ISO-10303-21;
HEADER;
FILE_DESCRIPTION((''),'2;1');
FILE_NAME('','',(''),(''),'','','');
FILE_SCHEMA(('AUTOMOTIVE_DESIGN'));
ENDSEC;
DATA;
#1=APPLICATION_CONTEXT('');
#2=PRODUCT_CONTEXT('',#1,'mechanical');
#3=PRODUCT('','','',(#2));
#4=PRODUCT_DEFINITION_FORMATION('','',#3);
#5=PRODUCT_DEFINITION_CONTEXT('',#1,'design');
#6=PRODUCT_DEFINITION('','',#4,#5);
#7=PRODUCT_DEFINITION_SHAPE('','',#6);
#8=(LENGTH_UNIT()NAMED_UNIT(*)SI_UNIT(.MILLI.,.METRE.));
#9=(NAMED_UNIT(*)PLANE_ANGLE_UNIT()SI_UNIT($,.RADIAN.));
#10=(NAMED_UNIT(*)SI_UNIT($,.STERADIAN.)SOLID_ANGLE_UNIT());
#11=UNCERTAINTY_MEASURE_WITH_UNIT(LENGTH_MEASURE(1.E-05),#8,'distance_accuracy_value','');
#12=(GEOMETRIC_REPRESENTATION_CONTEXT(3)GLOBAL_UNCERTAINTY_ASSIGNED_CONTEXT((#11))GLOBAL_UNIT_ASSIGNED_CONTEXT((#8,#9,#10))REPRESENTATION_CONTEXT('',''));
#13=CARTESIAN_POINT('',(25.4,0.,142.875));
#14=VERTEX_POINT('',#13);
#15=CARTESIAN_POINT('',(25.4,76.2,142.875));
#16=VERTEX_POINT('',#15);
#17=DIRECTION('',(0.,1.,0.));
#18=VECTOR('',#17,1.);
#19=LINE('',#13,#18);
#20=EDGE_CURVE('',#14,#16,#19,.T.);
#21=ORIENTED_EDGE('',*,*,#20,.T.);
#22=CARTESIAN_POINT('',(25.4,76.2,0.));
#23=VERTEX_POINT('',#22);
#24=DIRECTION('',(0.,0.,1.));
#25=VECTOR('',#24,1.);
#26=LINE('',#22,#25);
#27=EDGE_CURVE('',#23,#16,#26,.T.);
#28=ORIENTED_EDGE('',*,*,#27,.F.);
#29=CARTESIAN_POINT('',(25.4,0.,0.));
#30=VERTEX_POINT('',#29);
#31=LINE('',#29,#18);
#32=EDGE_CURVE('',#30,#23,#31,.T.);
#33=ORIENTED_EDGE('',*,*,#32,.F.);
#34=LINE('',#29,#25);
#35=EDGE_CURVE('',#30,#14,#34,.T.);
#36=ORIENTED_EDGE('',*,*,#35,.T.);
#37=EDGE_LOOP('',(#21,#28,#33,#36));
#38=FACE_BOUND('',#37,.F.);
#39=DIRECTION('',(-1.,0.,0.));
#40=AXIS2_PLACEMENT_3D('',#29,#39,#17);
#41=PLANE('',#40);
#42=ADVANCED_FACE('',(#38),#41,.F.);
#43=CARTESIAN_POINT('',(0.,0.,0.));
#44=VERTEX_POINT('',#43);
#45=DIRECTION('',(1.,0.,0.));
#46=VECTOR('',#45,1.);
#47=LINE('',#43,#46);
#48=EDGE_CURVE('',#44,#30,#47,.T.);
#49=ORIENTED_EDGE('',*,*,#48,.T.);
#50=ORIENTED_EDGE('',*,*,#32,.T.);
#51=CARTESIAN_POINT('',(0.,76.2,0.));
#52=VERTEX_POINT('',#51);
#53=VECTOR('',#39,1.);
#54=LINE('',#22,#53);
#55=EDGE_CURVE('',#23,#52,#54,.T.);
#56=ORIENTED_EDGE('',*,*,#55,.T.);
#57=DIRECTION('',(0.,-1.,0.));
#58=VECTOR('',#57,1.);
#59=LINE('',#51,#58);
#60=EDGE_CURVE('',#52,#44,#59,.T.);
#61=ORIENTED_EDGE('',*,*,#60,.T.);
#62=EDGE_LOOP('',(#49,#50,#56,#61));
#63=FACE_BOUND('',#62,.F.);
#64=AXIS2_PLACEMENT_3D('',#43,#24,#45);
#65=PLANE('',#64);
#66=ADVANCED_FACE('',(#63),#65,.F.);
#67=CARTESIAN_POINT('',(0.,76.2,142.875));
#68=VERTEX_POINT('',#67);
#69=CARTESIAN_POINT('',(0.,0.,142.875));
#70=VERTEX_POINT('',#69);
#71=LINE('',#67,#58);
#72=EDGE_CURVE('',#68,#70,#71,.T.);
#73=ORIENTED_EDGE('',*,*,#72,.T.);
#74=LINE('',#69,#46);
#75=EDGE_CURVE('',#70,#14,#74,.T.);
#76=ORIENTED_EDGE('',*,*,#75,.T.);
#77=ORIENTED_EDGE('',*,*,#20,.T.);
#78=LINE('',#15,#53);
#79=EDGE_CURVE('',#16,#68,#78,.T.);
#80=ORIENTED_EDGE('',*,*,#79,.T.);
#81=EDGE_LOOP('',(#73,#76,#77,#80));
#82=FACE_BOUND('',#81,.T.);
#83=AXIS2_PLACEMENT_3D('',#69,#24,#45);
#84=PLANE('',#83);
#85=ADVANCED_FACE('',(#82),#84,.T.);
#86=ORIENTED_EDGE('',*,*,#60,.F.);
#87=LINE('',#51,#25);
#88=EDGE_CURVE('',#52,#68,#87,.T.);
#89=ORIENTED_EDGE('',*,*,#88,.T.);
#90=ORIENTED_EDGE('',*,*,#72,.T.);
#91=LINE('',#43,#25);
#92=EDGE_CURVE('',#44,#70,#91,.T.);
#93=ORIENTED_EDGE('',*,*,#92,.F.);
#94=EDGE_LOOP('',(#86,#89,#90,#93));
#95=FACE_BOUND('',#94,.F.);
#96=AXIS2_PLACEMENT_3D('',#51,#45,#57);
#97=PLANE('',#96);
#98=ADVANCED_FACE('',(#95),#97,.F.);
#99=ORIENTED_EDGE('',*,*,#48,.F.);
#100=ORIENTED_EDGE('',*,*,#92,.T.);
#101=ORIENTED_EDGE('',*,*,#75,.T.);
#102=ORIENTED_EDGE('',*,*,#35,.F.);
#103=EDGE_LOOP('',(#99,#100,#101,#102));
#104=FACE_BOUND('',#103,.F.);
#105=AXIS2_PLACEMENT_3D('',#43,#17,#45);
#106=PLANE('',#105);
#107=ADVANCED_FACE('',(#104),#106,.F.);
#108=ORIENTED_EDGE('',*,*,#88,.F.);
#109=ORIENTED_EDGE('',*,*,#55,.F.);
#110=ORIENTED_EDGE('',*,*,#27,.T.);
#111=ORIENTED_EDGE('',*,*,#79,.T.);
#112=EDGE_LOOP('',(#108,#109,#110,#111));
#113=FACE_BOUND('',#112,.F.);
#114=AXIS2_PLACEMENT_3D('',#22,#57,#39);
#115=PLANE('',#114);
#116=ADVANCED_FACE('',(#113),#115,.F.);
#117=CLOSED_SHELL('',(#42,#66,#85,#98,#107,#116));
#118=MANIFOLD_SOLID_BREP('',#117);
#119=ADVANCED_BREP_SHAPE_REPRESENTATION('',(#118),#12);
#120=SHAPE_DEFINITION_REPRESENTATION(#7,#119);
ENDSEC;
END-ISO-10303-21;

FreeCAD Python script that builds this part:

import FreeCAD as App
import Part
import Sketcher
Q = App.Units.Quantity


def add_polygon(sketch, points):
    """Adds a closed chain of lines whose ends are joined by coincident constraints."""
    first, n = sketch.GeometryCount, len(points)
    for a, b in zip(points, points[1:] + points[:1]):
        sketch.addGeometry(Part.LineSegment(App.Vector(*a, 0), App.Vector(*b, 0)), False)
    for i in range(n):
        sketch.addConstraint(Sketcher.Constraint("Coincident", first + i, 2, first + (i + 1) % n, 1))

doc = App.newDocument("Part")
body = doc.addObject("PartDesign::Body", "Body")

# Sketch on XY plane
sketch1 = body.newObject("Sketcher::SketchObject", "Sketch")
sketch1.AttachmentSupport = (doc.getObject("XY_Plane"), [""])
sketch1.MapMode = "FlatFace"
add_polygon(sketch1, [(0, 76), (0, 0), (25, 0), (25, 76)])  # lines 0-3
sketch1.addConstraint([
    Sketcher.Constraint("Vertical", 0),
    Sketcher.Constraint("Horizontal", 1),
    Sketcher.Constraint("Vertical", 2),
    Sketcher.Constraint("Horizontal", 3),
    Sketcher.Constraint("Coincident", 0, 2, -1, 1),
    Sketcher.Constraint("DistanceX", 1, 1, 1, 2, Q("1 in")),
    Sketcher.Constraint("DistanceY", 0, 2, 0, 1, Q("3 in")),
])
pad1 = body.newObject("PartDesign::Pad", "Pad")
pad1.Profile = sketch1
pad1.Length = Q("5.625 in")

doc.recompute()
